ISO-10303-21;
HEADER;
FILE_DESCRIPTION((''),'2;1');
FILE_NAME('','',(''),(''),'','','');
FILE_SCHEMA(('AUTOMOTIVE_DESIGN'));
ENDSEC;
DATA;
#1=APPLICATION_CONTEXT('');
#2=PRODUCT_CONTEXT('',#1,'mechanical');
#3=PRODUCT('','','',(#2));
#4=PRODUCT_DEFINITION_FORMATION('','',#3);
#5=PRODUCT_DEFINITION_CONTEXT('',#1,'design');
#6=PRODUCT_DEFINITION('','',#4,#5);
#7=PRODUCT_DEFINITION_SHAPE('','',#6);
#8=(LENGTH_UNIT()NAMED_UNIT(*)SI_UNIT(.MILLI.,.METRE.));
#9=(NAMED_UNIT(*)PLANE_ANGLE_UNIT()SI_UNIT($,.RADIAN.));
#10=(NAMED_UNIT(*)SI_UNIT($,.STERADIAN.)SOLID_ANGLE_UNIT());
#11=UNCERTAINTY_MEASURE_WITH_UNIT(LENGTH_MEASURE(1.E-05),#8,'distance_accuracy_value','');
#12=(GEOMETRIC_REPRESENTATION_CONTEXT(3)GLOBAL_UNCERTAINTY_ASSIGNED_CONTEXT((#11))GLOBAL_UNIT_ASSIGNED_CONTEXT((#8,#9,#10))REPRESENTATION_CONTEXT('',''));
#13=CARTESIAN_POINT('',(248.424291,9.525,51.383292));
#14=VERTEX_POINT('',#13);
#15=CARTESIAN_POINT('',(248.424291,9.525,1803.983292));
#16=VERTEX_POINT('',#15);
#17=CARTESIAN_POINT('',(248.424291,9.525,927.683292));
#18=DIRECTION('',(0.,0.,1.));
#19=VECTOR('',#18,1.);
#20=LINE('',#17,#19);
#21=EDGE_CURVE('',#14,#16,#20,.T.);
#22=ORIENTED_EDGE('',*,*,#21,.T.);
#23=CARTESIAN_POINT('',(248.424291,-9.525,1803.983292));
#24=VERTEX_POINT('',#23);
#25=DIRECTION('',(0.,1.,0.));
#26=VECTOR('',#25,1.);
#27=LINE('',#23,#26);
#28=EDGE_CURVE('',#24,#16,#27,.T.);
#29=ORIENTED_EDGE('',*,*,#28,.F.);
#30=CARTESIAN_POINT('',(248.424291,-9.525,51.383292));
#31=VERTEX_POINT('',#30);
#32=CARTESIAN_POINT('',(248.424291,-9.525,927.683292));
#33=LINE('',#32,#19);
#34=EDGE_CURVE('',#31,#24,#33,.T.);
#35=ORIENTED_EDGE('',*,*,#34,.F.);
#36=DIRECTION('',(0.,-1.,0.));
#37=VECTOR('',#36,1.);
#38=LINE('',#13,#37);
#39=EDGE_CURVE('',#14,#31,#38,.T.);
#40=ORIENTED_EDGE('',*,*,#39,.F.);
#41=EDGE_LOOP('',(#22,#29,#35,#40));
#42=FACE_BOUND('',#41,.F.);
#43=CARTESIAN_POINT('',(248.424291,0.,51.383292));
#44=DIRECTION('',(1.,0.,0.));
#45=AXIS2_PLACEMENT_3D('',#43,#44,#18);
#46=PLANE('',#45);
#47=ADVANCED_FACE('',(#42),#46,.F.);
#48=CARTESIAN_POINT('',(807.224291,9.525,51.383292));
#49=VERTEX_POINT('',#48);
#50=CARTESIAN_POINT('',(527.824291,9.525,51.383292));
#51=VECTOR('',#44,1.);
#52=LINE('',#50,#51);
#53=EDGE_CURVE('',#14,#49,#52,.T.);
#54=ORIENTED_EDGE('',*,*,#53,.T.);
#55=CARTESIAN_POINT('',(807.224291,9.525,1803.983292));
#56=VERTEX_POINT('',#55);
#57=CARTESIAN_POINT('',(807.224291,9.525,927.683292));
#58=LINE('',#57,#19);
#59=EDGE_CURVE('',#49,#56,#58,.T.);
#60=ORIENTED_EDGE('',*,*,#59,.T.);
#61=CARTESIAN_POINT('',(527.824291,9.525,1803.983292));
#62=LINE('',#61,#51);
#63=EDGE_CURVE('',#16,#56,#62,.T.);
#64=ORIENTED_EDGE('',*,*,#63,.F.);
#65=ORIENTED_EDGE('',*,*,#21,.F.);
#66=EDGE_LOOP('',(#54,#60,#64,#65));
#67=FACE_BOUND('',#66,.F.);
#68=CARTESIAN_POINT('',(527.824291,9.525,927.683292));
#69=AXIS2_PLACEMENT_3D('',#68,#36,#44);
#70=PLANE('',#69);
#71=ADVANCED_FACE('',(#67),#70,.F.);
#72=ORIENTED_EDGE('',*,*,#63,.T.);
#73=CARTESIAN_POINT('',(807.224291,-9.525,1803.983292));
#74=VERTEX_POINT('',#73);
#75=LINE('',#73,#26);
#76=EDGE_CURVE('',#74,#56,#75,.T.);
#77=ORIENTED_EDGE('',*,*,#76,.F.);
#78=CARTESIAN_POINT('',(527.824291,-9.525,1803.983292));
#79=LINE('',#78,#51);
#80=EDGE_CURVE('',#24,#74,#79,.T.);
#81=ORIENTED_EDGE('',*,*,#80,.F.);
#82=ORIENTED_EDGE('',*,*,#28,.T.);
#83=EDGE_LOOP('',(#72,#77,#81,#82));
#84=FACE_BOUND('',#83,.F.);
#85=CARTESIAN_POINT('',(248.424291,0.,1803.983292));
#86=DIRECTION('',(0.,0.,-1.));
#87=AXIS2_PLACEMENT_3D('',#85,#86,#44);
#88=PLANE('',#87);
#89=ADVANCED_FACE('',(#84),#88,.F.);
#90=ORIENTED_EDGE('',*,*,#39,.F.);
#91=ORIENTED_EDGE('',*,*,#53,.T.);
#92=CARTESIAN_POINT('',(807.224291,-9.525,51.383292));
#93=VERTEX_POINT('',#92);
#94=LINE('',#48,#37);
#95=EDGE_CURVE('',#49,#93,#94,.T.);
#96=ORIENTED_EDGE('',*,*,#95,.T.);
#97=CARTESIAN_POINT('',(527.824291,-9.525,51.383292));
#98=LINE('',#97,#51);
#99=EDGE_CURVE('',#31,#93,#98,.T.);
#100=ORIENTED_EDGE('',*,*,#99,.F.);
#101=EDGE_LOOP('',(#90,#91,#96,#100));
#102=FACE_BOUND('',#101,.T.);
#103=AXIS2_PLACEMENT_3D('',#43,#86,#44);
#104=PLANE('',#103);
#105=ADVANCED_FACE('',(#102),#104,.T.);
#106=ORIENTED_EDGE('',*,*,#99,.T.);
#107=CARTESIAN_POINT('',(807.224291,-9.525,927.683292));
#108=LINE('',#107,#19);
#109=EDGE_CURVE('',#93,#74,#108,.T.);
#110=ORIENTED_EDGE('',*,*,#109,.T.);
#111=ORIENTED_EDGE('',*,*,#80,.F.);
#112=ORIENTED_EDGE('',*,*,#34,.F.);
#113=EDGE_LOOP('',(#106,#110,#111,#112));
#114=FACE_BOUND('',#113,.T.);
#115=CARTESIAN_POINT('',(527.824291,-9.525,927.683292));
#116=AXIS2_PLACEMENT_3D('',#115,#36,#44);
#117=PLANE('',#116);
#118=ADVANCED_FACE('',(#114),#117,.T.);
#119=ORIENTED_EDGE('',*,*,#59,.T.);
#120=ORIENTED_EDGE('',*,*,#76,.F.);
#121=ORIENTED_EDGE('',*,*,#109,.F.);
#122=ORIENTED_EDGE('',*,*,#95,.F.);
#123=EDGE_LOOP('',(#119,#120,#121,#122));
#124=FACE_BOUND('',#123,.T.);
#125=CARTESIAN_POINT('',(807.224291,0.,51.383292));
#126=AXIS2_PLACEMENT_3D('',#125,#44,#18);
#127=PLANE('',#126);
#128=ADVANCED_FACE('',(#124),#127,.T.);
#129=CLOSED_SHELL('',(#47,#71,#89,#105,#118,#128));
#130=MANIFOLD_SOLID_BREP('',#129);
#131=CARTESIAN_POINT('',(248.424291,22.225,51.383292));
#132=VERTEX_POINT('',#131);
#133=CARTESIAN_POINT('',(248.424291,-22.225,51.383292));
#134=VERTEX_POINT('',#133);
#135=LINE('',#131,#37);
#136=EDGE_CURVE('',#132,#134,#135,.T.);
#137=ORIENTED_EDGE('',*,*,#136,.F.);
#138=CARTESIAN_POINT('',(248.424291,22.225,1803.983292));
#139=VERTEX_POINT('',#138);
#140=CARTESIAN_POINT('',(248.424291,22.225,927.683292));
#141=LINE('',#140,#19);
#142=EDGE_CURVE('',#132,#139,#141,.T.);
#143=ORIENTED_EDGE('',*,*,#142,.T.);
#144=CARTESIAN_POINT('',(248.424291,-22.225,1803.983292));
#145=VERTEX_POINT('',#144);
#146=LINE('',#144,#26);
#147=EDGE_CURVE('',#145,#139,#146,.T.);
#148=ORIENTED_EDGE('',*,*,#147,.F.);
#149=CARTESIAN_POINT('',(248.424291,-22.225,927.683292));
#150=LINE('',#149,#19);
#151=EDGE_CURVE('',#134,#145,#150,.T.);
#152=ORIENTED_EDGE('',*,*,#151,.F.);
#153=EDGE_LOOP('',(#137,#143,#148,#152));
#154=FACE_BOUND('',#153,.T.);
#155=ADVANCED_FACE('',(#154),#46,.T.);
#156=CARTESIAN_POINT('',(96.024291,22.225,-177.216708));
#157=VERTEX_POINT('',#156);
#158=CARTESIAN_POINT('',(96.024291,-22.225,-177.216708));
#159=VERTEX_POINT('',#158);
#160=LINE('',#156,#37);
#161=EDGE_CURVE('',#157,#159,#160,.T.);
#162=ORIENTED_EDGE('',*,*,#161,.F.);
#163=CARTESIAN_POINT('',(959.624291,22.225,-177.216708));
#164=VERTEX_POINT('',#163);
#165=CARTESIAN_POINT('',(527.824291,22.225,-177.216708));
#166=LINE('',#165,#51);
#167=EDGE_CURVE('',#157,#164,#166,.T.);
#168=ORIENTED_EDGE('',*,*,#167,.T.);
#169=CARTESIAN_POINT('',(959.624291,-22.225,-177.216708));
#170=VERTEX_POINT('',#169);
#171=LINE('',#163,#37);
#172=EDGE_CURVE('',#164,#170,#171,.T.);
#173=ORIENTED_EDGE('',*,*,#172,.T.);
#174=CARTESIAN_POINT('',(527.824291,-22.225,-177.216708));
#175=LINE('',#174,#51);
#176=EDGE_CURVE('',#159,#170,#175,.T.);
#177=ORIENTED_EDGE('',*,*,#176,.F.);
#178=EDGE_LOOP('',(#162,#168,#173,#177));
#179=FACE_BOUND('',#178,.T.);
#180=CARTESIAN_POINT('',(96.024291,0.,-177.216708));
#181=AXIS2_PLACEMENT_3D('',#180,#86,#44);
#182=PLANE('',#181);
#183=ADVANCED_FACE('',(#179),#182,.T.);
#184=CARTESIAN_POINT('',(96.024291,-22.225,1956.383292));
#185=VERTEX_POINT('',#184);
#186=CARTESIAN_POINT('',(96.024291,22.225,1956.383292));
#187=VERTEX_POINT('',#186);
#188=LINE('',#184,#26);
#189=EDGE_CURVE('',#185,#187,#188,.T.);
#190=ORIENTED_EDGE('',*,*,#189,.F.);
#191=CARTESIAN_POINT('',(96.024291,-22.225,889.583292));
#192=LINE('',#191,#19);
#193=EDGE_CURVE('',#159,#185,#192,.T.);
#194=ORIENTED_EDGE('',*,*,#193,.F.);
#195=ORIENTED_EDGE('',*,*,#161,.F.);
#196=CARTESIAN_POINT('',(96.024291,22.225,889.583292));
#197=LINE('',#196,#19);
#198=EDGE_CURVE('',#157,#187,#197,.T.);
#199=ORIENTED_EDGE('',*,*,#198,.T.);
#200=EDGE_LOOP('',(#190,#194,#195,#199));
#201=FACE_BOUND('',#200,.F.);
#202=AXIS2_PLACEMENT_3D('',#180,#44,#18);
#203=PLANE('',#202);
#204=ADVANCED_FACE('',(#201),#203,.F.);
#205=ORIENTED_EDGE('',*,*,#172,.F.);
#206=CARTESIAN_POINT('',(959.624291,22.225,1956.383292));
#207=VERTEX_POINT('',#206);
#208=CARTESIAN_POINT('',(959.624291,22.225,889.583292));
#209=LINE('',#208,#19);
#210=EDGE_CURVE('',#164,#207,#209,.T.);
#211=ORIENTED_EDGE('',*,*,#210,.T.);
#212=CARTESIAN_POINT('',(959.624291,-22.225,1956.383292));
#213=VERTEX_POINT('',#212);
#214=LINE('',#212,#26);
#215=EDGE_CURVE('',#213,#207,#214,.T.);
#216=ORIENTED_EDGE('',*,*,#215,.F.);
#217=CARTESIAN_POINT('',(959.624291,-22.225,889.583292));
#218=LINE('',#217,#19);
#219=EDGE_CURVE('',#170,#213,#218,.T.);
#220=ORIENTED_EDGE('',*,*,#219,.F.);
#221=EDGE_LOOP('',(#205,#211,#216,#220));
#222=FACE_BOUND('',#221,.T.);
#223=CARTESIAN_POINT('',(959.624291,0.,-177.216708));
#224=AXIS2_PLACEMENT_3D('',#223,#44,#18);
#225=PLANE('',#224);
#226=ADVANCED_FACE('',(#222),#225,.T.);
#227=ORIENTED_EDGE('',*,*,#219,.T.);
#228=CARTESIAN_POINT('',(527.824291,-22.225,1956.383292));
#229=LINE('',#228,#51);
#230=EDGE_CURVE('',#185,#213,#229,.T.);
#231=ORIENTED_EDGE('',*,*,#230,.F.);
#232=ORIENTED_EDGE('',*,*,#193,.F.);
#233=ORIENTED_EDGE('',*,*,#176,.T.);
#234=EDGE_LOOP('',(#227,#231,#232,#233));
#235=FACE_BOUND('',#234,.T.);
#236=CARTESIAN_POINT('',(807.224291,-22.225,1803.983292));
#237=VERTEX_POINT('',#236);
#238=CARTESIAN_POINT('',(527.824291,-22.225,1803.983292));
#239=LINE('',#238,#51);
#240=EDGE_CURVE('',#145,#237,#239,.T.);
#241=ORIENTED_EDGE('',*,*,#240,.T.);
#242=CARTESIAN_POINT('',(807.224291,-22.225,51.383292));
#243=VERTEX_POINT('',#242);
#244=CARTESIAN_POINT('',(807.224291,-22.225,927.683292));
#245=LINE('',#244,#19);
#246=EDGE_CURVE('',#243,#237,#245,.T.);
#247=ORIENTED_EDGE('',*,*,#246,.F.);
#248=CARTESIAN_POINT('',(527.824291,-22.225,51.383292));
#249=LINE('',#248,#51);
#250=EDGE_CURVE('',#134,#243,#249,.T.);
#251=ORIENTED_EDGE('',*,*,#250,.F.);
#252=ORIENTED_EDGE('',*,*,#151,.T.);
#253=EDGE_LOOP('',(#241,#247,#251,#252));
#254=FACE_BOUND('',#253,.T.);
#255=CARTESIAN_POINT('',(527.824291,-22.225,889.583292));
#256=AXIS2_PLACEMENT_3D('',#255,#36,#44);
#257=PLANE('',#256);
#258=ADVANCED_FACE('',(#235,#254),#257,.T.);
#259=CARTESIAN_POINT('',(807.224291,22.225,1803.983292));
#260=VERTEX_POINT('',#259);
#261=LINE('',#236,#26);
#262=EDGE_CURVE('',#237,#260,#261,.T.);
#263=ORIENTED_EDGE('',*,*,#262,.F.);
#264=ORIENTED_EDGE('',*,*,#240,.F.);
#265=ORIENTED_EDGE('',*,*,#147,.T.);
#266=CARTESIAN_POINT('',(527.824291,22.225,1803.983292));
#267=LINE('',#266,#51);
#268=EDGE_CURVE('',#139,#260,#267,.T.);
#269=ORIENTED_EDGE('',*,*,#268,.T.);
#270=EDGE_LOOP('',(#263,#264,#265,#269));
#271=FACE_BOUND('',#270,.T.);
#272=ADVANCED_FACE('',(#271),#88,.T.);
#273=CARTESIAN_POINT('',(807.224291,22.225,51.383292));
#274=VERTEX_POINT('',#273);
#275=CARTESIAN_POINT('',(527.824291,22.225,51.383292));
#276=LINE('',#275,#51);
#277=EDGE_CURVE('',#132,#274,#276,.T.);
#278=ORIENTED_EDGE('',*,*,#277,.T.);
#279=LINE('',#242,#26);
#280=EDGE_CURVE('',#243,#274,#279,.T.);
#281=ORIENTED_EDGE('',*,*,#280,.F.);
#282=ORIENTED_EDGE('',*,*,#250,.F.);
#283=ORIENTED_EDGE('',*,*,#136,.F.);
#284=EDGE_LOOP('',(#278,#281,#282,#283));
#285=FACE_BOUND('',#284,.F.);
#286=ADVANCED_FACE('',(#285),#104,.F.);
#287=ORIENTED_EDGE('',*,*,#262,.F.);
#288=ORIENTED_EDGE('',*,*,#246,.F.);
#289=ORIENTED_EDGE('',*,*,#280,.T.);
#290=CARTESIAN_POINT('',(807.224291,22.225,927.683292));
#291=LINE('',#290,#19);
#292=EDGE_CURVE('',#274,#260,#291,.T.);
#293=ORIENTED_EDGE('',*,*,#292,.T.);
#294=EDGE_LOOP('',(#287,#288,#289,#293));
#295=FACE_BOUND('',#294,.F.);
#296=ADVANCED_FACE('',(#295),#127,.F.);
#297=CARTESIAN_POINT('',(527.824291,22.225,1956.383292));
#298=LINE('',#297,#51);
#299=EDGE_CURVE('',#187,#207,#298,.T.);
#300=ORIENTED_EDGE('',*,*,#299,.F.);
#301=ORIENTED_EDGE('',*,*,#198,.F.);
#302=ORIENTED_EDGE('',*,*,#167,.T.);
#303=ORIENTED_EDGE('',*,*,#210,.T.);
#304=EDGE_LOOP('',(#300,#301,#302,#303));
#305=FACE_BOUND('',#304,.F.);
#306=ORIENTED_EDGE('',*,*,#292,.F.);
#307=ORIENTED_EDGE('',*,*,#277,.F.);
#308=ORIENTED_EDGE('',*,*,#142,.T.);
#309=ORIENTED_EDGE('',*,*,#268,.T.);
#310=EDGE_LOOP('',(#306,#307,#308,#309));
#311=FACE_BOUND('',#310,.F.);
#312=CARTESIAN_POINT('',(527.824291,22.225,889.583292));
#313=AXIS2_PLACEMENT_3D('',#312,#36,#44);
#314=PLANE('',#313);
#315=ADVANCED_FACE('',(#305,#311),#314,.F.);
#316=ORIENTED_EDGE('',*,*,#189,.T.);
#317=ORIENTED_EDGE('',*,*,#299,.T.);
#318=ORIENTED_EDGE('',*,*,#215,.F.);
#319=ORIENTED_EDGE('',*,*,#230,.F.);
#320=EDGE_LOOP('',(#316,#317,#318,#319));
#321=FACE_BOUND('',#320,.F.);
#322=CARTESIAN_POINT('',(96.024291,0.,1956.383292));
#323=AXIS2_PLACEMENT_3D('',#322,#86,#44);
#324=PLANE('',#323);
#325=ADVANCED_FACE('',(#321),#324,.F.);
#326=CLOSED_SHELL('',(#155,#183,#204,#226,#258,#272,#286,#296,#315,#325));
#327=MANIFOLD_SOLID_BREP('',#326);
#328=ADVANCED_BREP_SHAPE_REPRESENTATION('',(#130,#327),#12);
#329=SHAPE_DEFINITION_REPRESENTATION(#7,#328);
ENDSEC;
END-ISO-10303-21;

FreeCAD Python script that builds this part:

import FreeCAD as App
import Part
import Sketcher

V = App.Vector
Q = App.Units.Quantity


def add_polygon(sketch, points):
    """Adds a closed chain of lines whose ends are joined by coincident constraints."""
    first, n = sketch.GeometryCount, len(points)
    for a, b in zip(points, points[1:] + points[:1]):
        sketch.addGeometry(Part.LineSegment(App.Vector(*a, 0), App.Vector(*b, 0)), False)
    for i in range(n):
        sketch.addConstraint(Sketcher.Constraint("Coincident", first + i, 2, first + (i + 1) % n, 1))

doc = App.newDocument("Part")
body = doc.addObject("PartDesign::Body", "Body")

# Sketch on XZ plane
sketch1 = doc.addObject("Sketcher::SketchObject", "Sketch")
body.addObject(sketch1)
sketch1.AttachmentSupport = (doc.XZ_Plane, [""])
sketch1.MapMode = "FlatFace"
add_polygon(sketch1, [(96, 1956), (96, -177), (960, -177), (960, 1956)])  # lines 0-3
add_polygon(sketch1, [(807, 51), (248, 51), (248, 1804), (807, 1804)])  # lines 4-7
sketch1.addConstraint([
    Sketcher.Constraint("Vertical", 0),
    Sketcher.Constraint("Horizontal", 1),
    Sketcher.Constraint("Vertical", 2),
    Sketcher.Constraint("Horizontal", 3),
    Sketcher.Constraint("Horizontal", 4),
    Sketcher.Constraint("Vertical", 5),
    Sketcher.Constraint("Horizontal", 6),
    Sketcher.Constraint("Vertical", 7),
    Sketcher.Constraint("DistanceX", 1, 1, 1, 2, Q("34 in")),
    Sketcher.Constraint("DistanceX", 4, 2, 4, 1, Q("22 in")),
    Sketcher.Constraint("DistanceY", 0, 2, 0, 1, Q("84 in")),
    Sketcher.Constraint("DistanceY", 5, 1, 5, 2, Q("69 in")),
    Sketcher.Constraint("DistanceX", 0, 2, 4, 2, Q("6 in")),
    Sketcher.Constraint("DistanceY", 0, 2, 4, 2, Q("9 in")),
    Sketcher.Constraint("DistanceX", -1, 1, 0, 2, 96.024291),
    Sketcher.Constraint("DistanceY", 0, 2, -1, 1, 177.216708),
])
pad1 = doc.addObject("PartDesign::Pad", "Pad")
body.addObject(pad1)
pad1.Profile = sketch1
pad1.Length = Q("1.75 in")
pad1.Midplane = True
body2 = doc.addObject("PartDesign::Body", "Body001")

# Sketch on XZ plane
sketch2 = doc.addObject("Sketcher::SketchObject", "Sketch001")
body2.addObject(sketch2)
sketch2.AttachmentSupport = (doc.getObject("XZ_Plane001"), [""])
sketch2.MapMode = "FlatFace"
add_polygon(sketch2, [(248, 1804), (248, 51), (807, 51), (807, 1804)])  # lines 0-3
sketch2.addConstraint([
    Sketcher.Constraint("Vertical", 0),
    Sketcher.Constraint("Horizontal", 1),
    Sketcher.Constraint("Vertical", 2),
    Sketcher.Constraint("Horizontal", 3),
    Sketcher.Constraint("DistanceX", 1, 1, 1, 2, Q("22 in")),
    Sketcher.Constraint("DistanceY", 0, 2, 0, 1, Q("69 in")),
    Sketcher.Constraint("DistanceX", -1, 1, 0, 2, 248.424291),
    Sketcher.Constraint("DistanceY", -1, 1, 0, 2, 51.383292),
])
pad2 = doc.addObject("PartDesign::Pad", "Pad001")
body2.addObject(pad2)
pad2.Profile = sketch2
pad2.Length = Q("0.75 in")
pad2.Midplane = True

doc.recompute()
